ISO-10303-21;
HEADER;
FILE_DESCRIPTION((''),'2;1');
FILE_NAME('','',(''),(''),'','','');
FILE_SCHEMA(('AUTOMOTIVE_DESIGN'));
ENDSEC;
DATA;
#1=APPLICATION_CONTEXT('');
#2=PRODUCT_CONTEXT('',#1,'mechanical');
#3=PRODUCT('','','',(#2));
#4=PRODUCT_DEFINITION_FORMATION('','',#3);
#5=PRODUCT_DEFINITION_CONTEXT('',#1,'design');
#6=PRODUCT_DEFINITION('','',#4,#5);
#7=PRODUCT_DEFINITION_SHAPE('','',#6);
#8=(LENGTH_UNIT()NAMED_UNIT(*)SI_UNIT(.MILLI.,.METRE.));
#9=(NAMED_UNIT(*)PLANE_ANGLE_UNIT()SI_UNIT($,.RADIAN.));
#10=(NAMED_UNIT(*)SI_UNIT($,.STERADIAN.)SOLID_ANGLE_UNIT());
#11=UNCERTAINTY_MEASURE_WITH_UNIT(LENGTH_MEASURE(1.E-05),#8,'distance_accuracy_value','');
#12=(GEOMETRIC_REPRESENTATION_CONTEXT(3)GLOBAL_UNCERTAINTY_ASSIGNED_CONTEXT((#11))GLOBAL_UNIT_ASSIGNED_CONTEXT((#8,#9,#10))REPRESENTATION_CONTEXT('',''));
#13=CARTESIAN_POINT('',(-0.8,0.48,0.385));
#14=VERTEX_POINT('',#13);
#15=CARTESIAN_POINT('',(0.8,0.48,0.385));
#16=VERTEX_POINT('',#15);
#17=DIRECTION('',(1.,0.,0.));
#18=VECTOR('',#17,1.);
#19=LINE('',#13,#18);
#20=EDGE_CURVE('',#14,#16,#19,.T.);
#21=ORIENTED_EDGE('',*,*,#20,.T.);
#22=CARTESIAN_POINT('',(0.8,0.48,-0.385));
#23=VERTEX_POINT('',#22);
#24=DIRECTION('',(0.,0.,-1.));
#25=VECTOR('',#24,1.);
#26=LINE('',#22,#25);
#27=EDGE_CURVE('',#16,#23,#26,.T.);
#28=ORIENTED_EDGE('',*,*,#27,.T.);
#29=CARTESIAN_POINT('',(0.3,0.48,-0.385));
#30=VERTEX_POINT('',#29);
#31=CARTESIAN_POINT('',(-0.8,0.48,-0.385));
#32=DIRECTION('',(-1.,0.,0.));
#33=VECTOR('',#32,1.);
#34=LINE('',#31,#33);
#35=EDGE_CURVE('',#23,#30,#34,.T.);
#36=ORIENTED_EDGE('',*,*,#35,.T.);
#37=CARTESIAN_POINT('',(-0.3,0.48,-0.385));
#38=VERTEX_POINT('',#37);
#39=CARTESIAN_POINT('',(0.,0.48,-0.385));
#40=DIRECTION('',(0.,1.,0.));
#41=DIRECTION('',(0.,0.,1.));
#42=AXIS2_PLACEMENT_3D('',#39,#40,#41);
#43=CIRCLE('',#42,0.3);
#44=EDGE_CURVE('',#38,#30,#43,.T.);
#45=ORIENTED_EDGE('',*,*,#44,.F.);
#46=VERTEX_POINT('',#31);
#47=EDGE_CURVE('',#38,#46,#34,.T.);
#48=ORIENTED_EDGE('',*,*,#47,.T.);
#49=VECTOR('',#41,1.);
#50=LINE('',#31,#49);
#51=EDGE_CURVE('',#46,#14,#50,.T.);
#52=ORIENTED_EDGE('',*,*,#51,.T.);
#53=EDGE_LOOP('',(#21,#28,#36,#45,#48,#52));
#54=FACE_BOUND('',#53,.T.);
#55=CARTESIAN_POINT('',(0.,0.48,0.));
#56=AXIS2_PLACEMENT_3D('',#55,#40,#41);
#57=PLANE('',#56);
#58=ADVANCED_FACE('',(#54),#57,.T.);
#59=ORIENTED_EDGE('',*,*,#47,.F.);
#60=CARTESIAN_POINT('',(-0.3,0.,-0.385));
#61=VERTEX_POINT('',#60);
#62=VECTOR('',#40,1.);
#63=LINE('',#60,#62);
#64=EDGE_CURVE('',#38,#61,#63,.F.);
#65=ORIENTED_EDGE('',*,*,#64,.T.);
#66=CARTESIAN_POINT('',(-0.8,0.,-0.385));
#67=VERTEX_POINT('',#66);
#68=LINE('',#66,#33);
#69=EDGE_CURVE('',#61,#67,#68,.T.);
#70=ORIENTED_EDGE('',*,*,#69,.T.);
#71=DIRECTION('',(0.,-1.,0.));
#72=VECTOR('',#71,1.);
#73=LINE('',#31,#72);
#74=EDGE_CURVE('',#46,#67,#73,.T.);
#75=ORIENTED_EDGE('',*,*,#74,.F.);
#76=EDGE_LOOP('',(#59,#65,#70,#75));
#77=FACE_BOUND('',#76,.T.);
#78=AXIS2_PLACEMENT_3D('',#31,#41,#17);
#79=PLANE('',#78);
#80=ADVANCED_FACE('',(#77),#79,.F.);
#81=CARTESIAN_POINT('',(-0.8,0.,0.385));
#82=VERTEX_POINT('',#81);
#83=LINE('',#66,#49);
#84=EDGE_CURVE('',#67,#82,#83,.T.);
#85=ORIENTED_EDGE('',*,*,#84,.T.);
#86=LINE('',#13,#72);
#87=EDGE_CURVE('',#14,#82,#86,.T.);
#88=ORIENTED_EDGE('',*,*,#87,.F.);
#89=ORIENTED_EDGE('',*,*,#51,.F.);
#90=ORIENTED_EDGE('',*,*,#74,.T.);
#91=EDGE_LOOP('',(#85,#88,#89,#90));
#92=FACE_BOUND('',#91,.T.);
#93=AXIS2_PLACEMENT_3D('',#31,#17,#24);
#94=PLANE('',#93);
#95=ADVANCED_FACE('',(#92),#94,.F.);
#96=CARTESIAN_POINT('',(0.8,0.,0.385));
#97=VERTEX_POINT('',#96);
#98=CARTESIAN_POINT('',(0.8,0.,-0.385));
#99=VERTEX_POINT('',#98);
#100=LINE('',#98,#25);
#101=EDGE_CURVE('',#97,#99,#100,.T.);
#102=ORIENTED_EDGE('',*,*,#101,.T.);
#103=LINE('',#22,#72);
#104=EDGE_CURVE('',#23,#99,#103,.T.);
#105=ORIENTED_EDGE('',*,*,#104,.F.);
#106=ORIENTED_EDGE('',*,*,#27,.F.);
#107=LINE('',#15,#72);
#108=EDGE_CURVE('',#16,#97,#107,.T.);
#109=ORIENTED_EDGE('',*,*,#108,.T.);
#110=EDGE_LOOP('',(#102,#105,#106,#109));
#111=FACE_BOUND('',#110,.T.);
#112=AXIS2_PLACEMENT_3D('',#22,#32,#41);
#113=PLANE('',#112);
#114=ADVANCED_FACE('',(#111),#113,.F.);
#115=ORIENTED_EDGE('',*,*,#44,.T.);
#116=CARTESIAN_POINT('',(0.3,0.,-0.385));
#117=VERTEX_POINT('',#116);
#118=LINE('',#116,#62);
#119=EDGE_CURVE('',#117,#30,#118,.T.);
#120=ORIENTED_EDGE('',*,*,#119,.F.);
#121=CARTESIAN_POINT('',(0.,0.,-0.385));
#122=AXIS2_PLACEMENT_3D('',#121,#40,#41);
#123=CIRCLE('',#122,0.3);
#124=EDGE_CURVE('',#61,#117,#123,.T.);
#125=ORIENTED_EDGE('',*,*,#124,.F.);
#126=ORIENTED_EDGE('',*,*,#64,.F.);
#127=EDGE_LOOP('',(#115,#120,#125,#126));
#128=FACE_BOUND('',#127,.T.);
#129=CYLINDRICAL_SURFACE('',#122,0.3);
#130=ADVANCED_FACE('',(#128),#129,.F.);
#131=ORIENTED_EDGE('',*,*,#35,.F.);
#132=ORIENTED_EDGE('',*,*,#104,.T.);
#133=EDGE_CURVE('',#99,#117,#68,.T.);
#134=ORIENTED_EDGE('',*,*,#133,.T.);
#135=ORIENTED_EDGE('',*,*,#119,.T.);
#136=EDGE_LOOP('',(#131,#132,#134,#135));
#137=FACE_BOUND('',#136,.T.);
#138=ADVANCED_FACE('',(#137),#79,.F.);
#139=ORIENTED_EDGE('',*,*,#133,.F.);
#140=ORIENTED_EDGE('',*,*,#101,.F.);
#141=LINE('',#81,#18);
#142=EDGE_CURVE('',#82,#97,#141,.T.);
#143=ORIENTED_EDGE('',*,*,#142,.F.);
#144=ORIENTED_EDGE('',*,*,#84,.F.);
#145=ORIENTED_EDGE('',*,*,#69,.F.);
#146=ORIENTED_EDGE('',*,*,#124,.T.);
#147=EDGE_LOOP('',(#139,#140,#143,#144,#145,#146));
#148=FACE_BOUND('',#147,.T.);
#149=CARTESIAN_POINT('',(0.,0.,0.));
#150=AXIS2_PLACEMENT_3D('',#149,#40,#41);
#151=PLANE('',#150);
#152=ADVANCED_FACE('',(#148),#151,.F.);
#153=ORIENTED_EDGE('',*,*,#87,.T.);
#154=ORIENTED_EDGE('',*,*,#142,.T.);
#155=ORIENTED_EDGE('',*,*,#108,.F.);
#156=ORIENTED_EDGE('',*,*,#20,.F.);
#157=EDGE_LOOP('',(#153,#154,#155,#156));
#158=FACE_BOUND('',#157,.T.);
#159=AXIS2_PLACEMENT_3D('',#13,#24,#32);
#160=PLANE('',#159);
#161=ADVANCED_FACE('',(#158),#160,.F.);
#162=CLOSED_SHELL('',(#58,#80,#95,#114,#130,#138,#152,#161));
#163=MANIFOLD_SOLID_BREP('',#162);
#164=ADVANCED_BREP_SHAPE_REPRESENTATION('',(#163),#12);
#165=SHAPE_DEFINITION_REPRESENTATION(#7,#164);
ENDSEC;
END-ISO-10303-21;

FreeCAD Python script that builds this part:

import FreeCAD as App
import Part
import Sketcher
Q = App.Units.Quantity

doc = App.newDocument("Part")
body = doc.addObject("PartDesign::Body", "Body")

sketch1 = doc.addObject("Sketcher::SketchObject", "Sketch")
body.addObject(sketch1)
sketch1.AttachmentSupport = (doc.XZ_Plane, [""])
sketch1.MapMode = "FlatFace"
sketch1.addGeometry([
    Part.LineSegment(App.Vector(-0.8, -0.4, 0), App.Vector(-0.8, 0.4, 0)),
    Part.LineSegment(App.Vector(-0.8, 0.4, 0), App.Vector(0.8, 0.4, 0)),
    Part.LineSegment(App.Vector(0.8, 0.4, 0), App.Vector(0.8, -0.4, 0)),
    Part.LineSegment(App.Vector(0.8, -0.4, 0), App.Vector(-0.8, -0.4, 0)),
], False)
sketch1.addConstraint([
    Sketcher.Constraint("Coincident", 0, 2, 1, 1),
    Sketcher.Constraint("Coincident", 1, 2, 2, 1),
    Sketcher.Constraint("Coincident", 2, 2, 3, 1),
    Sketcher.Constraint("Coincident", 3, 2, 0, 1),
    Sketcher.Constraint("Vertical", 0),
    Sketcher.Constraint("Horizontal", 1),
    Sketcher.Constraint("Vertical", 2),
    Sketcher.Constraint("Horizontal", 3),
    Sketcher.Constraint("Symmetric", 0, 2, 2, 2, -1, 1),
    Sketcher.Constraint("DistanceX", 1, 1, 1, 2, Q("1.6 mm")),
    Sketcher.Constraint("DistanceY", 0, 1, 0, 2, Q("0.77 mm")),
])
pad1 = doc.addObject("PartDesign::Pad", "Pad")
body.addObject(pad1)
pad1.Profile = sketch1
pad1.Length = 0.48
pad1.Reversed = True

sketch2 = doc.addObject("Sketcher::SketchObject", "Sketch001")
body.addObject(sketch2)
sketch2.AttachmentSupport = (doc.XZ_Plane, [""])
sketch2.MapMode = "FlatFace"
sketch2.AttachmentOffset = App.Placement(App.Vector(0, 0, -0.48), App.Rotation())
sketch2.addGeometry(Part.Circle(App.Vector(0, -0.39, 0), App.Vector(0, 0, 1), 0.3), False)
sketch2.addConstraint([
    Sketcher.Constraint("PointOnObject", 0, 3, -2),
    Sketcher.Constraint("Diameter", 0, Q("0.6 mm")),
    Sketcher.Constraint("DistanceY", 0, 3, -1, 1, Q("0.385 mm")),
])
pocket1 = doc.addObject("PartDesign::Pocket", "Pocket")
body.addObject(pocket1)
pocket1.Profile = sketch2
pocket1.Type = "ThroughAll"
pocket1.Reversed = True

doc.recompute()
